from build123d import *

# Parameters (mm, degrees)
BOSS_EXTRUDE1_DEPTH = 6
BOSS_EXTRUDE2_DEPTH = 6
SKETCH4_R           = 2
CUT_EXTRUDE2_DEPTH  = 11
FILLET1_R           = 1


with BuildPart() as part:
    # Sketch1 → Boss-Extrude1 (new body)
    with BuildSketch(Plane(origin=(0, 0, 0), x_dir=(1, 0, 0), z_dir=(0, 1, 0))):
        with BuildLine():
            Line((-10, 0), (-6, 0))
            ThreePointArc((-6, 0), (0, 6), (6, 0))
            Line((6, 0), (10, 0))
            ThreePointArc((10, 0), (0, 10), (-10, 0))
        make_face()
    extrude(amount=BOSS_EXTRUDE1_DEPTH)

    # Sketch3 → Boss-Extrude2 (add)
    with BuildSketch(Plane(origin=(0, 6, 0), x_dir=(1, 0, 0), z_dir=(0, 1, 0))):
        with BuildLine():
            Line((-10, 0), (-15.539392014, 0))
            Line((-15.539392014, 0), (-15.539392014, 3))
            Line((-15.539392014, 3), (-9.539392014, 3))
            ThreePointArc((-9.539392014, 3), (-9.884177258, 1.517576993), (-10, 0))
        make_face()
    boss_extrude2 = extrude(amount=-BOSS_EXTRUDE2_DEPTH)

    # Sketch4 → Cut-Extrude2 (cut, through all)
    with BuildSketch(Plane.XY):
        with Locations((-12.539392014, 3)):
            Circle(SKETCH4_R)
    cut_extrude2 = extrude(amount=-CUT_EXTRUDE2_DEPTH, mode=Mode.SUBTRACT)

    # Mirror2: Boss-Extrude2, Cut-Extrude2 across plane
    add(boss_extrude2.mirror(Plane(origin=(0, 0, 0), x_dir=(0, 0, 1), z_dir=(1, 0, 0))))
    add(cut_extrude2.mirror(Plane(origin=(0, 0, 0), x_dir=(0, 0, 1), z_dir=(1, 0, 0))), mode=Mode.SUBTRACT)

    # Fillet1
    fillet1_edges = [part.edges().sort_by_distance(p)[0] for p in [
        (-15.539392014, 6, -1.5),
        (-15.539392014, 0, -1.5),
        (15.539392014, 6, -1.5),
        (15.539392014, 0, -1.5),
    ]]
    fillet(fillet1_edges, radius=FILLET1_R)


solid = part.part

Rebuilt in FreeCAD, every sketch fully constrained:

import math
import FreeCAD as App
import Part
import Sketcher
Q = App.Units.Quantity


def edges_at(feature, points):
    """Names of the edges that pass closest to the given points."""
    edges = feature.Shape.Edges
    near = lambda p: min(range(len(edges)), key=lambda i: edges[i].distToShape(Part.Vertex(*p))[0])
    return sorted({f"Edge{near(p) + 1}" for p in points})

doc = App.newDocument("Part")
body = doc.addObject("PartDesign::Body", "Body")

# Sketch on XZ plane
sketch1 = body.newObject("Sketcher::SketchObject", "Sketch")
sketch1.AttachmentSupport = (doc.getObject("XZ_Plane"), [""])
sketch1.MapMode = "FlatFace"
sketch1.addGeometry([
    Part.LineSegment(App.Vector(-10, 0, 0), App.Vector(-6, 0, 0)),
    Part.ArcOfCircle(Part.Circle(App.Vector(0, 0, 0), App.Vector(0, 0, 1), 6), math.radians(180), math.radians(360)),
    Part.LineSegment(App.Vector(6, 0, 0), App.Vector(10, 0, 0)),
    Part.ArcOfCircle(Part.Circle(App.Vector(0, 0, 0), App.Vector(0, 0, 1), 10), math.radians(180), math.radians(360)),
], False)
sketch1.addConstraint([
    Sketcher.Constraint("Coincident", 0, 2, 1, 1),
    Sketcher.Constraint("Coincident", 1, 2, 2, 1),
    Sketcher.Constraint("Coincident", 2, 2, 3, 2),
    Sketcher.Constraint("Coincident", 3, 1, 0, 1),
    Sketcher.Constraint("Horizontal", 0),
    Sketcher.Constraint("Horizontal", 2),
    Sketcher.Constraint("Coincident", 1, 3, -1, 1),
    Sketcher.Constraint("Coincident", 3, 3, -1, 1),
    Sketcher.Constraint("PointOnObject", 0, 2, -1),
    Sketcher.Constraint("PointOnObject", 1, 2, -1),
    Sketcher.Constraint("Radius", 1, Q("6 mm")),
    Sketcher.Constraint("Radius", 3, Q("10 mm")),
])
pad1 = body.newObject("PartDesign::Pad", "Pad")
pad1.Profile = sketch1
pad1.Length = 6
pad1.Reversed = True

# Sketch on XZ plane
sketch2 = body.newObject("Sketcher::SketchObject", "Sketch001")
sketch2.AttachmentSupport = (doc.getObject("XZ_Plane"), [""])
sketch2.MapMode = "FlatFace"
sketch2.AttachmentOffset = App.Placement(App.Vector(0, 0, -6), App.Rotation())
sketch2.addGeometry([
    Part.LineSegment(App.Vector(-15.5, 0, 0), App.Vector(-10, 0, 0)),
    Part.ArcOfCircle(Part.Circle(App.Vector(0, 0, 0), App.Vector(0, 0, 1), 10), math.radians(-180), math.radians(-162.54)),
    Part.LineSegment(App.Vector(-9.5, -3, 0), App.Vector(-15.5, -3, 0)),
    Part.LineSegment(App.Vector(-15.5, -3, 0), App.Vector(-15.5, 0, 0)),
], False)
sketch2.addConstraint([
    Sketcher.Constraint("Coincident", 0, 2, 1, 1),
    Sketcher.Constraint("Coincident", 1, 2, 2, 1),
    Sketcher.Constraint("Coincident", 2, 2, 3, 1),
    Sketcher.Constraint("Coincident", 3, 2, 0, 1),
    Sketcher.Constraint("Horizontal", 0),
    Sketcher.Constraint("Horizontal", 2),
    Sketcher.Constraint("Vertical", 3),
    Sketcher.Constraint("Coincident", 1, 3, -1, 1),
    Sketcher.Constraint("PointOnObject", 0, 2, -1),
    Sketcher.Constraint("Radius", 1, Q("10 mm")),
    Sketcher.Constraint("DistanceX", 2, 2, 2, 1, Q("6 mm")),
    Sketcher.Constraint("DistanceY", 3, 1, 3, 2, Q("3 mm")),
])
pad2 = body.newObject("PartDesign::Pad", "Pad001")
pad2.Profile = sketch2
pad2.Length = 6

# Sketch on XY plane
sketch3 = body.newObject("Sketcher::SketchObject", "Sketch002")
sketch3.AttachmentSupport = (doc.getObject("XY_Plane"), [""])
sketch3.MapMode = "FlatFace"
sketch3.addGeometry(Part.Circle(App.Vector(-12.5, 3, 0), App.Vector(0, 0, 1), 2), False)
sketch3.addConstraint([
    Sketcher.Constraint("Diameter", 0, Q("4 mm")),
    Sketcher.Constraint("DistanceY", -1, 1, 0, 3, Q("3 mm")),
    Sketcher.Constraint("DistanceX", 0, 3, -1, 1, Q("12.539392 mm")),
])
pocket1 = body.newObject("PartDesign::Pocket", "Pocket")
pocket1.Profile = sketch3
pocket1.Type = "ThroughAll"
doc.recompute()

mirrored = body.newObject("PartDesign::Mirrored", "Mirrored")
mirrored.Originals = [pad2, pocket1]
mirrored.MirrorPlane = (doc.getObject("YZ_Plane"), [""])
body.Tip = mirrored
doc.recompute()

fillet = body.newObject("PartDesign::Fillet", "Fillet")
fillet.Base = (mirrored, edges_at(mirrored, [
    (-15.539, 6, -1.5),
    (-15.539, 0, -1.5),
    (15.539, 6, -1.5),
    (15.539, 0, -1.5),
]))
fillet.Radius = 1

doc.recompute()
